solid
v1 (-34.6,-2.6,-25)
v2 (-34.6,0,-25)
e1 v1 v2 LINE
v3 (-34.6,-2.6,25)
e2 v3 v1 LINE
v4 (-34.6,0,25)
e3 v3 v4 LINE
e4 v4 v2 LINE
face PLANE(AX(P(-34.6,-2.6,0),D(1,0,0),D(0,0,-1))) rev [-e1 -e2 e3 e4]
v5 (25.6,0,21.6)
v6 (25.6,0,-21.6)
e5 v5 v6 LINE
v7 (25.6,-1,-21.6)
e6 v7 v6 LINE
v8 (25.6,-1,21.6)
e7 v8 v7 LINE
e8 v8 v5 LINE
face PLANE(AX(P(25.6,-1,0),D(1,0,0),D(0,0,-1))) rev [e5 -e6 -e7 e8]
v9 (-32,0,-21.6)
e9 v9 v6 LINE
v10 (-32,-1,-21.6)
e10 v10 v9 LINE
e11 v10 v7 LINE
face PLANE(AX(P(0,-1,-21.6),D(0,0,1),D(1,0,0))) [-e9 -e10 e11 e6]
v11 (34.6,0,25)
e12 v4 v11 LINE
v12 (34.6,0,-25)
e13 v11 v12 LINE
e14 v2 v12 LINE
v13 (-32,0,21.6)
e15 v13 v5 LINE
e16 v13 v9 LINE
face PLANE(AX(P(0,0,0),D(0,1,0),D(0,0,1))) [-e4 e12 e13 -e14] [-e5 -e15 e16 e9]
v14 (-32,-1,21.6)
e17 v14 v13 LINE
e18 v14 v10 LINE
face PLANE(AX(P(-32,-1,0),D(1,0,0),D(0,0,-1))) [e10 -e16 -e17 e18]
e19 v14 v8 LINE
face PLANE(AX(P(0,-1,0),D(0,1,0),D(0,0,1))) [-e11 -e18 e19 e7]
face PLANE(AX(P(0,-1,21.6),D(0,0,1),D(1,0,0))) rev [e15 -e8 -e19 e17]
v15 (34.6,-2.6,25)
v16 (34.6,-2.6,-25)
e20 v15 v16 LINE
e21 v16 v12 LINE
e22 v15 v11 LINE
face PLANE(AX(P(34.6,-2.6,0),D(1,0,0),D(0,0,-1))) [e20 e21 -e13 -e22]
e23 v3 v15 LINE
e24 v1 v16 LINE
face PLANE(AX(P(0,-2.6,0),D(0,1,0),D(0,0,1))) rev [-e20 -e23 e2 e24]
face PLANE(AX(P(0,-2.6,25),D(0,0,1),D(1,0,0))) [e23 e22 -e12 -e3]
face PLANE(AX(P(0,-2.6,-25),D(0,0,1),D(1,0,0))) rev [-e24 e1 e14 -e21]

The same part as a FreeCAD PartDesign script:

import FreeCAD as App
import Part
import Sketcher

V = App.Vector


def add_polygon(sketch, points):
    """Adds a closed chain of lines whose ends are joined by coincident constraints."""
    first, n = sketch.GeometryCount, len(points)
    for a, b in zip(points, points[1:] + points[:1]):
        sketch.addGeometry(Part.LineSegment(App.Vector(*a, 0), App.Vector(*b, 0)), False)
    for i in range(n):
        sketch.addConstraint(Sketcher.Constraint("Coincident", first + i, 2, first + (i + 1) % n, 1))

doc = App.newDocument("Part")
body = doc.addObject("PartDesign::Body", "Body")

sketch1 = body.newObject("Sketcher::SketchObject", "Sketch")
sketch1.AttachmentSupport = (doc.getObject("XZ_Plane"), [""])
sketch1.MapMode = "FlatFace"
add_polygon(sketch1, [(-35, -25), (-35, 25), (35, 25), (35, -25)])
sketch1.addConstraint([
    Sketcher.Constraint("Vertical", 0),
    Sketcher.Constraint("Horizontal", 1),
    Sketcher.Constraint("Vertical", 2),
    Sketcher.Constraint("Horizontal", 3),
    Sketcher.Constraint("Symmetric", 0, 2, 2, 2, -1, 1),
    Sketcher.Constraint("DistanceY", 0, 1, 0, 2, 50.0),
    Sketcher.Constraint("DistanceX", 1, 1, 1, 2, 69.2),
])
pad1 = body.newObject("PartDesign::Pad", "Pad")
pad1.Profile = sketch1
pad1.Length = 2.6

sketch2 = body.newObject("Sketcher::SketchObject", "Sketch001")
sketch2.AttachmentSupport = (doc.getObject("XZ_Plane"), [""])
sketch2.MapMode = "FlatFace"
add_polygon(sketch2, [(-32, -22), (-32, 22), (26, 22), (26, -22)])
sketch2.addConstraint([
    Sketcher.Constraint("Vertical", 0),
    Sketcher.Constraint("Horizontal", 1),
    Sketcher.Constraint("Vertical", 2),
    Sketcher.Constraint("Horizontal", 3),
    Sketcher.Constraint("DistanceX", 1, 1, 1, 2, 57.6),
    Sketcher.Constraint("DistanceY", 0, 1, 0, 2, 43.2),
    Sketcher.Constraint("DistanceX", 0, 2, -1, 1, 32.0),
    Sketcher.Constraint("DistanceY", -1, 1, 0, 2, 21.6),
])
pocket1 = body.newObject("PartDesign::Pocket", "Pocket")
pocket1.Profile = sketch2
pocket1.Length = 1
pocket1.Reversed = True

doc.recompute()
